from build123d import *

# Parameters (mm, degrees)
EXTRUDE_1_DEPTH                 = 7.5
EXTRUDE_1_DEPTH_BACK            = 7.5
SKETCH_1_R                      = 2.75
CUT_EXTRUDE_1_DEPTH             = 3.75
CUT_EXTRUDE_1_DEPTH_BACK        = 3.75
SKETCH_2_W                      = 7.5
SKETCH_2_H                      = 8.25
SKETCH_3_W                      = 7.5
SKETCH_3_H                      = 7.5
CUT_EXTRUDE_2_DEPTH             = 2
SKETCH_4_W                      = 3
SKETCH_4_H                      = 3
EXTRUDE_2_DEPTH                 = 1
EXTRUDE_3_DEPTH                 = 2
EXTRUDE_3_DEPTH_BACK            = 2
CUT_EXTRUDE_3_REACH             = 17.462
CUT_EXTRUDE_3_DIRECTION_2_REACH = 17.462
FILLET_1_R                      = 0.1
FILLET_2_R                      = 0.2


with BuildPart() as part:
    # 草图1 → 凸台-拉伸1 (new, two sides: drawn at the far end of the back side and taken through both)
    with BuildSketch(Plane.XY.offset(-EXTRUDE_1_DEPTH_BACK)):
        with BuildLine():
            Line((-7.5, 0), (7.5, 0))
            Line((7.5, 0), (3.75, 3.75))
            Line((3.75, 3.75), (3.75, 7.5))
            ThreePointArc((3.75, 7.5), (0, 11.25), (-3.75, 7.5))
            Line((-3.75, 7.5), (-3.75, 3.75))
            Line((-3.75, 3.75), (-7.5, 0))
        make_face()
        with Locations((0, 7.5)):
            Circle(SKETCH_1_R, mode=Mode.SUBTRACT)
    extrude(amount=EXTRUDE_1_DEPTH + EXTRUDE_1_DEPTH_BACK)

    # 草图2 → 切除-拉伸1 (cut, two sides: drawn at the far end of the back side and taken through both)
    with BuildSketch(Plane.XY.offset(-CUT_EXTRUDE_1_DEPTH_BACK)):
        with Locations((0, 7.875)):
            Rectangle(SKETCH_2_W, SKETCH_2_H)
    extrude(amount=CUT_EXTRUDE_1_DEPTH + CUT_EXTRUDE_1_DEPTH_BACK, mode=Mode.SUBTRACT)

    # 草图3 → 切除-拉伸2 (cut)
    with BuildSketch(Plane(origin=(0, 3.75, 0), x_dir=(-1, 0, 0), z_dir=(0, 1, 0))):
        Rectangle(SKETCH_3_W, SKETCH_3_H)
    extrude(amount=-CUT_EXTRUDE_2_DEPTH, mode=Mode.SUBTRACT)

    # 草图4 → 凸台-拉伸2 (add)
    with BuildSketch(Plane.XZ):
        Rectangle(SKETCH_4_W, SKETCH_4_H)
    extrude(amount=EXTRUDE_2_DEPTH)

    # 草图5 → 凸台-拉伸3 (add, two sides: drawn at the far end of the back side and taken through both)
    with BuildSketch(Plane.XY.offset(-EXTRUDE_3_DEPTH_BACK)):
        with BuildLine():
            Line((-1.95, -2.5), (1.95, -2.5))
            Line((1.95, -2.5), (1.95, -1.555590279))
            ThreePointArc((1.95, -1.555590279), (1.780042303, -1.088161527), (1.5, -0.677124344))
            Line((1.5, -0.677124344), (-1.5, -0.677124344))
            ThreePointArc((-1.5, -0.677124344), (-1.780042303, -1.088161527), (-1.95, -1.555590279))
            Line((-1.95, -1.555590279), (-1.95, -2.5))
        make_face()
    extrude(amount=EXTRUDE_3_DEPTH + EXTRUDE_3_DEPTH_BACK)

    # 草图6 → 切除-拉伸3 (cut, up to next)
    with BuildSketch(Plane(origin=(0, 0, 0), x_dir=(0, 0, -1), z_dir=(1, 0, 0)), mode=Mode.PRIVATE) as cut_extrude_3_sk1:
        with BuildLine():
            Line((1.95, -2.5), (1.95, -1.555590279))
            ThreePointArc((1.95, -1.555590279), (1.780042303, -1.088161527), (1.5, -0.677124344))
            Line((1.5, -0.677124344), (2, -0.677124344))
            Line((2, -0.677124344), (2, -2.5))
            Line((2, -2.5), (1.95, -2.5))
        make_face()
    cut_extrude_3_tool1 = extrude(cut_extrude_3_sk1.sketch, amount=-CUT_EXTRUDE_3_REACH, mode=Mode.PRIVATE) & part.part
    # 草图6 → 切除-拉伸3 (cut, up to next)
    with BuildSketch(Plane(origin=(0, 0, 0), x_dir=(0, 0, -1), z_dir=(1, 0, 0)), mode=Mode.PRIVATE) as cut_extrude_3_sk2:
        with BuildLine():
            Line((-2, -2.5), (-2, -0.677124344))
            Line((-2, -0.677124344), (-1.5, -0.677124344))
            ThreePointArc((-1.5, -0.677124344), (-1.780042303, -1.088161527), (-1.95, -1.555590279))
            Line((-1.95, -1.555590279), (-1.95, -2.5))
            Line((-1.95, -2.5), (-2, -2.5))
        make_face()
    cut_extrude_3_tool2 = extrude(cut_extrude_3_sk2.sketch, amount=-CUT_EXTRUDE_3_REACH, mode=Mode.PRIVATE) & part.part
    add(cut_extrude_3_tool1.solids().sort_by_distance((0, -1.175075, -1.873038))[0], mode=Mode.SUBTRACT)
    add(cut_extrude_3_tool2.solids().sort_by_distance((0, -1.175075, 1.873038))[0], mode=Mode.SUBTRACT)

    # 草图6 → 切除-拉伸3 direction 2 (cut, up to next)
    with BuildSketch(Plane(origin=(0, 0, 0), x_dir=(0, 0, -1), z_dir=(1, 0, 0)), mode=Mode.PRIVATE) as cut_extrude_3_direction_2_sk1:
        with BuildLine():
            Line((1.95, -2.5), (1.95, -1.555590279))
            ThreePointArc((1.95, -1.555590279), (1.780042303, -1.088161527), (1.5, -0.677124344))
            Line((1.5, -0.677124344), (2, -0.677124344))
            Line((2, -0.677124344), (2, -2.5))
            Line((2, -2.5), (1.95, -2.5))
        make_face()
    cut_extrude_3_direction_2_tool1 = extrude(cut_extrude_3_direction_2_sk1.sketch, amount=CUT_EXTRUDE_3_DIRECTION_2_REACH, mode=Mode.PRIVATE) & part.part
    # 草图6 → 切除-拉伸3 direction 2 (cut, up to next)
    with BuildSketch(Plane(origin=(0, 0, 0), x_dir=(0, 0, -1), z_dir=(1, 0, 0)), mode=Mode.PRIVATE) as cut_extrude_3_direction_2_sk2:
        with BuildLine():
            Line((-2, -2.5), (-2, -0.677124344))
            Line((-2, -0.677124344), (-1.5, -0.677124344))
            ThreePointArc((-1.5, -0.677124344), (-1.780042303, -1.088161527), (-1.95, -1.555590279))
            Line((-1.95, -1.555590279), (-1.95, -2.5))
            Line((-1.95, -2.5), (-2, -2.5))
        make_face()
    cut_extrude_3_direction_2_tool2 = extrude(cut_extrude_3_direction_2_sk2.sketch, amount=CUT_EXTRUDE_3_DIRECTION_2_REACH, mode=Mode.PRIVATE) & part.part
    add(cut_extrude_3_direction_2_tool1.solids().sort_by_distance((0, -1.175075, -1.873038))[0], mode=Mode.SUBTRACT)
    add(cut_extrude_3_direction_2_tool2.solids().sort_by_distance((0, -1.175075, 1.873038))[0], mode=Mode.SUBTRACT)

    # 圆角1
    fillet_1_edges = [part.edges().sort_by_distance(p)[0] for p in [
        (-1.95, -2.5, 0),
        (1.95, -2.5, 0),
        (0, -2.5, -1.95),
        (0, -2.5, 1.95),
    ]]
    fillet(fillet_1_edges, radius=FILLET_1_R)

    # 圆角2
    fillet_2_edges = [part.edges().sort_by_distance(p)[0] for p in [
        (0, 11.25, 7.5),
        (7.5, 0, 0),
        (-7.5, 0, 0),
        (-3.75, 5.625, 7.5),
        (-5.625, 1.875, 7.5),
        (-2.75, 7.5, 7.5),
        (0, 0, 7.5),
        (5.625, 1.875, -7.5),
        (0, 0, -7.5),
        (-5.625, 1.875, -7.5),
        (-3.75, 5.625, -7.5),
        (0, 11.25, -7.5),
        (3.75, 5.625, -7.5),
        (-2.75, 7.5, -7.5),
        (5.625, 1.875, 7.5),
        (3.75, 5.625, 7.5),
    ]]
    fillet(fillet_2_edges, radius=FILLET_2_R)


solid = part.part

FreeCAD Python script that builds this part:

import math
import FreeCAD as App
import Part
import Sketcher

V = App.Vector
Q = App.Units.Quantity


def edges_at(feature, points):
    """Names of the edges that pass closest to the given points."""
    edges = feature.Shape.Edges
    near = lambda p: min(range(len(edges)), key=lambda i: edges[i].distToShape(Part.Vertex(*p))[0])
    return sorted({f"Edge{near(p) + 1}" for p in points})

doc = App.newDocument("Part")
body = doc.addObject("PartDesign::Body", "Body")

# Sketch on XY plane
sketch1 = body.newObject("Sketcher::SketchObject", "Sketch")
sketch1.AttachmentSupport = (doc.getObject("XY_Plane"), [""])
sketch1.MapMode = "FlatFace"
sketch1.addGeometry([
    Part.LineSegment(V(-7.5, 0, 0), V(7.5, 0, 0)),  # 0
    Part.LineSegment(V(7.5, 0, 0), V(3.8, 3.8, 0)),  # 1
    Part.LineSegment(V(3.8, 3.8, 0), V(3.8, 7.5, 0)),  # 2
    Part.ArcOfCircle(Part.Circle(V(0, 7.5, 0), V(0, 0, 1), 3.8), math.radians(0), math.radians(180)),  # 3
    Part.LineSegment(V(-3.8, 7.5, 0), V(-3.8, 3.8, 0)),  # 4
    Part.LineSegment(V(-3.8, 3.8, 0), V(-7.5, 0, 0)),  # 5
    Part.Circle(V(0, 7.5, 0), V(0, 0, 1), 2.8),  # 6
], False)
sketch1.addConstraint([
    Sketcher.Constraint("Coincident", 0, 2, 1, 1),
    Sketcher.Constraint("Coincident", 1, 2, 2, 1),
    Sketcher.Constraint("Tangent", 2, 2, 3, 1),
    Sketcher.Constraint("Tangent", 3, 2, 4, 1),
    Sketcher.Constraint("Coincident", 4, 2, 5, 1),
    Sketcher.Constraint("Coincident", 5, 2, 0, 1),
    Sketcher.Constraint("Horizontal", 0),
    Sketcher.Constraint("Vertical", 2),
    Sketcher.Constraint("Vertical", 4),
    Sketcher.Constraint("Coincident", 6, 3, 3, 3),
    Sketcher.Constraint("Symmetric", 0, 2, 5, 2, -1, 1),
    Sketcher.Constraint("Symmetric", 1, 2, 4, 2, -2),
    Sketcher.Constraint("Perpendicular", 1, 5),
    Sketcher.Constraint("Diameter", 6, Q("5.5 mm")),
    Sketcher.Constraint("DistanceX", 0, 1, 0, 2, Q("15 mm")),
    Sketcher.Constraint("Radius", 3, Q("3.75 mm")),
    Sketcher.Constraint("DistanceY", 2, 1, 2, 2, Q("3.75 mm")),
])
pad1 = body.newObject("PartDesign::Pad", "Pad")
pad1.Profile = sketch1
pad1.Type = "TwoLengths"
pad1.Length = 7.5
pad1.Length2 = 7.5

# Sketch on XY plane
sketch2 = body.newObject("Sketcher::SketchObject", "Sketch001")
sketch2.AttachmentSupport = (doc.getObject("XY_Plane"), [""])
sketch2.MapMode = "FlatFace"
sketch2.addGeometry([
    Part.LineSegment(V(-4, 12, 0), V(-4, 4, 0)),
    Part.LineSegment(V(-4, 4, 0), V(4, 4, 0)),
    Part.LineSegment(V(4, 4, 0), V(4, 12, 0)),
    Part.LineSegment(V(4, 12, 0), V(-4, 12, 0)),
], False)
sketch2.addConstraint([
    Sketcher.Constraint("Coincident", 0, 2, 1, 1),
    Sketcher.Constraint("Coincident", 1, 2, 2, 1),
    Sketcher.Constraint("Coincident", 2, 2, 3, 1),
    Sketcher.Constraint("Coincident", 3, 2, 0, 1),
    Sketcher.Constraint("Vertical", 0),
    Sketcher.Constraint("Horizontal", 1),
    Sketcher.Constraint("Vertical", 2),
    Sketcher.Constraint("Horizontal", 3),
    Sketcher.Constraint("DistanceX", 1, 1, 1, 2, Q("7.5 mm")),
    Sketcher.Constraint("DistanceY", -1, 1, 2, 2, Q("12 mm")),
    Sketcher.Constraint("DistanceY", 0, 2, 0, 1, Q("8.25 mm")),
    Sketcher.Constraint("DistanceX", 0, 2, -1, 1, Q("3.75 mm")),
])
pocket1 = body.newObject("PartDesign::Pocket", "Pocket")
pocket1.Profile = sketch2
pocket1.Type = "TwoLengths"
pocket1.Length = 3.75
pocket1.Length2 = 3.75
pocket1.Reversed = True

# Sketch on XZ plane
sketch3 = body.newObject("Sketcher::SketchObject", "Sketch002")
sketch3.AttachmentSupport = (doc.getObject("XZ_Plane"), [""])
sketch3.MapMode = "FlatFace"
sketch3.AttachmentOffset = App.Placement(V(0, 0, -3.75), App.Rotation())
sketch3.addGeometry([
    Part.LineSegment(V(4, 4, 0), V(4, -4, 0)),
    Part.LineSegment(V(4, -4, 0), V(-4, -4, 0)),
    Part.LineSegment(V(-4, -4, 0), V(-4, 4, 0)),
    Part.LineSegment(V(-4, 4, 0), V(4, 4, 0)),
], False)
sketch3.addConstraint([
    Sketcher.Constraint("Coincident", 0, 2, 1, 1),
    Sketcher.Constraint("Coincident", 1, 2, 2, 1),
    Sketcher.Constraint("Coincident", 2, 2, 3, 1),
    Sketcher.Constraint("Coincident", 3, 2, 0, 1),
    Sketcher.Constraint("Vertical", 0),
    Sketcher.Constraint("Horizontal", 1),
    Sketcher.Constraint("Vertical", 2),
    Sketcher.Constraint("Horizontal", 3),
    Sketcher.Constraint("Symmetric", 0, 2, 2, 2, -1, 1),
    Sketcher.Constraint("Equal", 3, 0),
    Sketcher.Constraint("DistanceX", 1, 2, 1, 1, Q("7.5 mm")),
])
pocket2 = body.newObject("PartDesign::Pocket", "Pocket001")
pocket2.Profile = sketch3
pocket2.Length = 2
pocket2.Reversed = True

# Sketch on XZ plane
sketch4 = body.newObject("Sketcher::SketchObject", "Sketch003")
sketch4.AttachmentSupport = (doc.getObject("XZ_Plane"), [""])
sketch4.MapMode = "FlatFace"
sketch4.addGeometry([
    Part.LineSegment(V(-1.5, 1.5, 0), V(-1.5, -1.5, 0)),
    Part.LineSegment(V(-1.5, -1.5, 0), V(1.5, -1.5, 0)),
    Part.LineSegment(V(1.5, -1.5, 0), V(1.5, 1.5, 0)),
    Part.LineSegment(V(1.5, 1.5, 0), V(-1.5, 1.5, 0)),
], False)
sketch4.addConstraint([
    Sketcher.Constraint("Coincident", 0, 2, 1, 1),
    Sketcher.Constraint("Coincident", 1, 2, 2, 1),
    Sketcher.Constraint("Coincident", 2, 2, 3, 1),
    Sketcher.Constraint("Coincident", 3, 2, 0, 1),
    Sketcher.Constraint("Vertical", 0),
    Sketcher.Constraint("Horizontal", 1),
    Sketcher.Constraint("Vertical", 2),
    Sketcher.Constraint("Horizontal", 3),
    Sketcher.Constraint("Symmetric", 0, 2, 2, 2, -1, 1),
    Sketcher.Constraint("Equal", 3, 0),
    Sketcher.Constraint("DistanceX", 1, 1, 1, 2, Q("3 mm")),
])
pad2 = body.newObject("PartDesign::Pad", "Pad001")
pad2.Profile = sketch4
pad2.Length = 1

# Sketch on XY plane
sketch5 = body.newObject("Sketcher::SketchObject", "Sketch004")
sketch5.AttachmentSupport = (doc.getObject("XY_Plane"), [""])
sketch5.MapMode = "FlatFace"
sketch5.addGeometry([
    Part.LineSegment(V(-1.9, -2.5, 0), V(1.9, -2.5, 0)),  # 0
    Part.LineSegment(V(1.9, -2.5, 0), V(1.9, -1.6, 0)),  # 1
    Part.ArcOfCircle(Part.Circle(V(0, -2, 0), V(0, 0, 1), 2), math.radians(13), math.radians(41)),  # 2
    Part.LineSegment(V(1.5, -0.7, 0), V(-1.5, -0.7, 0)),  # 3
    Part.ArcOfCircle(Part.Circle(V(0, -2, 0), V(0, 0, 1), 2), math.radians(139), math.radians(167)),  # 4
    Part.LineSegment(V(-1.9, -1.6, 0), V(-1.9, -2.5, 0)),  # 5
], False)
sketch5.addConstraint([
    Sketcher.Constraint("Coincident", 0, 2, 1, 1),
    Sketcher.Constraint("Coincident", 1, 2, 2, 1),
    Sketcher.Constraint("Coincident", 2, 2, 3, 1),
    Sketcher.Constraint("Coincident", 3, 2, 4, 1),
    Sketcher.Constraint("Coincident", 4, 2, 5, 1),
    Sketcher.Constraint("Coincident", 5, 2, 0, 1),
    Sketcher.Constraint("Horizontal", 0),
    Sketcher.Constraint("Vertical", 1),
    Sketcher.Constraint("Horizontal", 3),
    Sketcher.Constraint("Vertical", 5),
    Sketcher.Constraint("Coincident", 4, 3, 2, 3),
    Sketcher.Constraint("Equal", 2, 4),
    Sketcher.Constraint("Symmetric", 1, 2, 4, 2, -2),
    Sketcher.Constraint("Radius", 2, Q("2 mm")),
    Sketcher.Constraint("DistanceX", 3, 2, 3, 1, Q("3 mm")),
    Sketcher.Constraint("DistanceX", 0, 1, 0, 2, Q("3.9 mm")),
    Sketcher.Constraint("DistanceY", 2, 3, -1, 1, Q("2 mm")),
    Sketcher.Constraint("DistanceY", 0, 2, -1, 1, Q("2.5 mm")),
])
pad3 = body.newObject("PartDesign::Pad", "Pad002")
pad3.Profile = sketch5
pad3.Type = "TwoLengths"
pad3.Length = 2
pad3.Length2 = 2

# Sketch on YZ plane
sketch6 = body.newObject("Sketcher::SketchObject", "Sketch005")
sketch6.AttachmentSupport = (doc.getObject("YZ_Plane"), [""])
sketch6.MapMode = "FlatFace"
sketch6.addGeometry([
    Part.LineSegment(V(-1.56, -1.95, 0), V(-2.5, -1.95, 0)),  # 0
    Part.LineSegment(V(-2.5, -1.95, 0), V(-2.5, -2, 0)),  # 1
    Part.LineSegment(V(-2.5, -2, 0), V(-0.68, -2, 0)),  # 2
    Part.LineSegment(V(-0.68, -2, 0), V(-0.68, -1.5, 0)),  # 3
    Part.ArcOfCircle(Part.Circle(V(-2, 0, 0), V(0, 0, 1), 2), math.radians(-77), math.radians(-49)),  # 4
], False)
sketch6.addConstraint([
    Sketcher.Constraint("Coincident", 0, 2, 1, 1),
    Sketcher.Constraint("Coincident", 1, 2, 2, 1),
    Sketcher.Constraint("Coincident", 2, 2, 3, 1),
    Sketcher.Constraint("Coincident", 3, 2, 4, 2),
    Sketcher.Constraint("Coincident", 4, 1, 0, 1),
    Sketcher.Constraint("Horizontal", 0),
    Sketcher.Constraint("Vertical", 1),
    Sketcher.Constraint("Horizontal", 2),
    Sketcher.Constraint("Vertical", 3),
    Sketcher.Constraint("PointOnObject", 4, 3, -1),
    Sketcher.Constraint("Radius", 4, Q("2 mm")),
    Sketcher.Constraint("DistanceY", 3, 1, 3, 2, Q("0.5 mm")),
    Sketcher.Constraint("DistanceX", 4, 3, -1, 1, Q("2 mm")),
    Sketcher.Constraint("DistanceY", 1, 2, -1, 1, Q("2 mm")),
    Sketcher.Constraint("DistanceY", 1, 2, 1, 1, Q("0.05 mm")),
    Sketcher.Constraint("DistanceX", 0, 2, -1, 1, Q("2.5 mm")),
])
pocket3 = body.newObject("PartDesign::Pocket", "Pocket002")
pocket3.Profile = sketch6
pocket3.Type = "UpToFirst"

# Sketch on YZ plane
sketch7 = body.newObject("Sketcher::SketchObject", "Sketch006")
sketch7.AttachmentSupport = (doc.getObject("YZ_Plane"), [""])
sketch7.MapMode = "FlatFace"
sketch7.addGeometry([
    Part.LineSegment(V(-0.68, 2, 0), V(-2.5, 2, 0)),  # 0
    Part.LineSegment(V(-2.5, 2, 0), V(-2.5, 1.95, 0)),  # 1
    Part.LineSegment(V(-2.5, 1.95, 0), V(-1.56, 1.95, 0)),  # 2
    Part.ArcOfCircle(Part.Circle(V(-2, 0, 0), V(0, 0, 1), 2), math.radians(49), math.radians(77)),  # 3
    Part.LineSegment(V(-0.68, 1.5, 0), V(-0.68, 2, 0)),  # 4
], False)
sketch7.addConstraint([
    Sketcher.Constraint("Coincident", 0, 2, 1, 1),
    Sketcher.Constraint("Coincident", 1, 2, 2, 1),
    Sketcher.Constraint("Coincident", 2, 2, 3, 2),
    Sketcher.Constraint("Coincident", 3, 1, 4, 1),
    Sketcher.Constraint("Coincident", 4, 2, 0, 1),
    Sketcher.Constraint("Horizontal", 0),
    Sketcher.Constraint("Vertical", 1),
    Sketcher.Constraint("Horizontal", 2),
    Sketcher.Constraint("Vertical", 4),
    Sketcher.Constraint("PointOnObject", 3, 3, -1),
    Sketcher.Constraint("Radius", 3, Q("2 mm")),
    Sketcher.Constraint("DistanceY", 4, 1, 4, 2, Q("0.5 mm")),
    Sketcher.Constraint("DistanceX", 3, 3, -1, 1, Q("2 mm")),
    Sketcher.Constraint("DistanceY", -1, 1, 0, 2, Q("2 mm")),
    Sketcher.Constraint("DistanceY", 1, 2, 1, 1, Q("0.05 mm")),
    Sketcher.Constraint("DistanceX", 0, 2, -1, 1, Q("2.5 mm")),
])
pocket4 = body.newObject("PartDesign::Pocket", "Pocket003")
pocket4.Profile = sketch7
pocket4.Type = "UpToFirst"

# Sketch on YZ plane
sketch8 = body.newObject("Sketcher::SketchObject", "Sketch007")
sketch8.AttachmentSupport = (doc.getObject("YZ_Plane"), [""])
sketch8.MapMode = "FlatFace"
sketch8.addGeometry([
    Part.LineSegment(V(-1.56, -1.95, 0), V(-2.5, -1.95, 0)),  # 0
    Part.LineSegment(V(-2.5, -1.95, 0), V(-2.5, -2, 0)),  # 1
    Part.LineSegment(V(-2.5, -2, 0), V(-0.68, -2, 0)),  # 2
    Part.LineSegment(V(-0.68, -2, 0), V(-0.68, -1.5, 0)),  # 3
    Part.ArcOfCircle(Part.Circle(V(-2, 0, 0), V(0, 0, 1), 2), math.radians(-77), math.radians(-49)),  # 4
], False)
sketch8.addConstraint([
    Sketcher.Constraint("Coincident", 0, 2, 1, 1),
    Sketcher.Constraint("Coincident", 1, 2, 2, 1),
    Sketcher.Constraint("Coincident", 2, 2, 3, 1),
    Sketcher.Constraint("Coincident", 3, 2, 4, 2),
    Sketcher.Constraint("Coincident", 4, 1, 0, 1),
    Sketcher.Constraint("Horizontal", 0),
    Sketcher.Constraint("Vertical", 1),
    Sketcher.Constraint("Horizontal", 2),
    Sketcher.Constraint("Vertical", 3),
    Sketcher.Constraint("PointOnObject", 4, 3, -1),
    Sketcher.Constraint("Radius", 4, Q("2 mm")),
    Sketcher.Constraint("DistanceY", 3, 1, 3, 2, Q("0.5 mm")),
    Sketcher.Constraint("DistanceX", 4, 3, -1, 1, Q("2 mm")),
    Sketcher.Constraint("DistanceY", 1, 2, -1, 1, Q("2 mm")),
    Sketcher.Constraint("DistanceY", 1, 2, 1, 1, Q("0.05 mm")),
    Sketcher.Constraint("DistanceX", 0, 2, -1, 1, Q("2.5 mm")),
])
pocket5 = body.newObject("PartDesign::Pocket", "Pocket004")
pocket5.Profile = sketch8
pocket5.Type = "UpToFirst"
pocket5.Reversed = True

# Sketch on YZ plane
sketch9 = body.newObject("Sketcher::SketchObject", "Sketch008")
sketch9.AttachmentSupport = (doc.getObject("YZ_Plane"), [""])
sketch9.MapMode = "FlatFace"
sketch9.addGeometry([
    Part.LineSegment(V(-0.68, 2, 0), V(-2.5, 2, 0)),  # 0
    Part.LineSegment(V(-2.5, 2, 0), V(-2.5, 1.95, 0)),  # 1
    Part.LineSegment(V(-2.5, 1.95, 0), V(-1.56, 1.95, 0)),  # 2
    Part.ArcOfCircle(Part.Circle(V(-2, 0, 0), V(0, 0, 1), 2), math.radians(49), math.radians(77)),  # 3
    Part.LineSegment(V(-0.68, 1.5, 0), V(-0.68, 2, 0)),  # 4
], False)
sketch9.addConstraint([
    Sketcher.Constraint("Coincident", 0, 2, 1, 1),
    Sketcher.Constraint("Coincident", 1, 2, 2, 1),
    Sketcher.Constraint("Coincident", 2, 2, 3, 2),
    Sketcher.Constraint("Coincident", 3, 1, 4, 1),
    Sketcher.Constraint("Coincident", 4, 2, 0, 1),
    Sketcher.Constraint("Horizontal", 0),
    Sketcher.Constraint("Vertical", 1),
    Sketcher.Constraint("Horizontal", 2),
    Sketcher.Constraint("Vertical", 4),
    Sketcher.Constraint("PointOnObject", 3, 3, -1),
    Sketcher.Constraint("Radius", 3, Q("2 mm")),
    Sketcher.Constraint("DistanceY", 4, 1, 4, 2, Q("0.5 mm")),
    Sketcher.Constraint("DistanceX", 3, 3, -1, 1, Q("2 mm")),
    Sketcher.Constraint("DistanceY", -1, 1, 0, 2, Q("2 mm")),
    Sketcher.Constraint("DistanceY", 1, 2, 1, 1, Q("0.05 mm")),
    Sketcher.Constraint("DistanceX", 0, 2, -1, 1, Q("2.5 mm")),
])
pocket6 = body.newObject("PartDesign::Pocket", "Pocket005")
pocket6.Profile = sketch9
pocket6.Type = "UpToFirst"
pocket6.Reversed = True
doc.recompute()

fillet = body.newObject("PartDesign::Fillet", "Fillet")
fillet.Base = (pocket6, edges_at(pocket6, [
    (-1.95, -2.5, 0),
    (1.95, -2.5, 0),
    (0, -2.5, -1.95),
    (0, -2.5, 1.95),
]))
fillet.Radius = 0.1
doc.recompute()

fillet2 = body.newObject("PartDesign::Fillet", "Fillet001")
fillet2.Base = (fillet, edges_at(fillet, [
    (0, 11.25, 7.5),
    (7.5, 0, 0),
    (-7.5, 0, 0),
    (-3.75, 5.625, 7.5),
    (-5.625, 1.875, 7.5),
    (-2.75, 7.5, 7.5),
    (0, 0, 7.5),
    (5.625, 1.875, -7.5),
    (0, 0, -7.5),
    (-5.625, 1.875, -7.5),
    (-3.75, 5.625, -7.5),
    (0, 11.25, -7.5),
    (3.75, 5.625, -7.5),
    (-2.75, 7.5, -7.5),
    (5.625, 1.875, 7.5),
    (3.75, 5.625, 7.5),
]))
fillet2.Radius = 0.2

doc.recompute()
